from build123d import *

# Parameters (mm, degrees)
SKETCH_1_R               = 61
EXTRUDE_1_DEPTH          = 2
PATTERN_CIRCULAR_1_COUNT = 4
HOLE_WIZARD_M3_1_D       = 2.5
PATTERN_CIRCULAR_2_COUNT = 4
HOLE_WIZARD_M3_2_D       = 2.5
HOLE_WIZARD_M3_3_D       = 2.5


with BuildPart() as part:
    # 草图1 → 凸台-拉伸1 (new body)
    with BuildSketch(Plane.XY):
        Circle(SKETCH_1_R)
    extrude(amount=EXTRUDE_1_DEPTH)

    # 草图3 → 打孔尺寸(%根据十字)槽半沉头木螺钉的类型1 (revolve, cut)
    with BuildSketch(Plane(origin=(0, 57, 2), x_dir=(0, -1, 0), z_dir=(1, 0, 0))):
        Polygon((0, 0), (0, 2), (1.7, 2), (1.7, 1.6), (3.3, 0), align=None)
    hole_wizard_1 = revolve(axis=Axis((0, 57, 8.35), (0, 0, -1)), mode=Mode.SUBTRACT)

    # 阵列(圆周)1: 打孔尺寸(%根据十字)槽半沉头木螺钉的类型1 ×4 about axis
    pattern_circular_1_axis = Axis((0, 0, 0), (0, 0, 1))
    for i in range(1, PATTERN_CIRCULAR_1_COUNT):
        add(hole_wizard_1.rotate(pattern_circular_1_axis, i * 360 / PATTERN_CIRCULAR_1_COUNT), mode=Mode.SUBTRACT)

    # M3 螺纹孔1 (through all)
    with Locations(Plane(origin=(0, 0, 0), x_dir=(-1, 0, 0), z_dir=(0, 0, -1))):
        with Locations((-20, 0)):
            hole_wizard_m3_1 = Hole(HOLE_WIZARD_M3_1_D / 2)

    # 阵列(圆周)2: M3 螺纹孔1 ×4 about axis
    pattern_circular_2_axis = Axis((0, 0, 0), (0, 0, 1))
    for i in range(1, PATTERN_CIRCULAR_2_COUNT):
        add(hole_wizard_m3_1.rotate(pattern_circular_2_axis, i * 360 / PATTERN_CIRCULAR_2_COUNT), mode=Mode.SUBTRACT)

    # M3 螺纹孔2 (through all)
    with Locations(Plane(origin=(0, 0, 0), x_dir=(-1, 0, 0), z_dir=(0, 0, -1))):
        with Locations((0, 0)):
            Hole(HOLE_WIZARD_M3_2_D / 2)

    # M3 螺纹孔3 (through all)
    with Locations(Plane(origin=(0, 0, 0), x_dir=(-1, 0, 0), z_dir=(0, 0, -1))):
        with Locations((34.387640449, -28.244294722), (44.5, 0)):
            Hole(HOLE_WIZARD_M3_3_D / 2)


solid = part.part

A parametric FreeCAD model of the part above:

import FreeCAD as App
import Part
import Sketcher
Q = App.Units.Quantity


def add_polygon(sketch, points):
    """Adds a closed chain of lines whose ends are joined by coincident constraints."""
    first, n = sketch.GeometryCount, len(points)
    for a, b in zip(points, points[1:] + points[:1]):
        sketch.addGeometry(Part.LineSegment(App.Vector(*a, 0), App.Vector(*b, 0)), False)
    for i in range(n):
        sketch.addConstraint(Sketcher.Constraint("Coincident", first + i, 2, first + (i + 1) % n, 1))

doc = App.newDocument("Part")
params = doc.addObject("Spreadsheet::Sheet", "Params")
for row, (alias, value) in enumerate([
    ("sketch1_diameter", "122 mm"),
    ("pad1_length", "2 mm"),
    ("sketch2_height", "2 mm"),
    ("sketch2_width", "3.3 mm"),
    ("sketch2_width2", "1.7 mm"),
    ("groove_angle", "360 deg"),
    ("sketch3_diameter", "2.5 mm"),
    ("hole_diameter", "2.5 mm"),
    ("sketch4_diameter", "2.5 mm"),
    ("hole2_diameter", "2.5 mm"),
    ("sketch5_diameter", "2.5 mm"),
    ("hole3_diameter", "2.5 mm"),
], start=1):
    params.set(f"A{row}", alias)
    params.set(f"B{row}", "=" + value)
    params.setAlias(f"B{row}", alias)

body = doc.addObject("PartDesign::Body", "Body")

# Sketch on XY plane
sketch1 = body.newObject("Sketcher::SketchObject", "Sketch")
sketch1.AttachmentSupport = (doc.getObject("XY_Plane"), [""])
sketch1.MapMode = "FlatFace"
sketch1.addGeometry(Part.Circle(App.Vector(0, 0, 0), App.Vector(0, 0, 1), 61), False)
sketch1.addConstraint(Sketcher.Constraint("Coincident", 0, 3, -1, 1))
sketch1.addConstraint(Sketcher.Constraint("Diameter", 0, 122.0))
sketch1.setExpression("Constraints[1]", "Params.sketch1_diameter")
pad1 = body.newObject("PartDesign::Pad", "Pad")
pad1.Profile = sketch1
pad1.setExpression("Length", "Params.pad1_length")

# Sketch on YZ plane
sketch2 = body.newObject("Sketcher::SketchObject", "Sketch001")
sketch2.AttachmentSupport = (doc.getObject("YZ_Plane"), [""])
sketch2.MapMode = "FlatFace"
add_polygon(sketch2, [(57, 0), (57, 2), (53.7, 2), (55.3, 0.4), (55.3, 0)])  # lines 0-4
sketch2.addGeometry(Part.LineSegment(App.Vector(57, 2, 0), App.Vector(57, 0, 0)), True)  # axis
sketch2.addConstraint(Sketcher.Constraint("Vertical", 0))
sketch2.addConstraint(Sketcher.Constraint("Horizontal", 1))
sketch2.addConstraint(Sketcher.Constraint("Vertical", 3))
sketch2.addConstraint(Sketcher.Constraint("Horizontal", 4))
sketch2.addConstraint(Sketcher.Constraint("Vertical", 5))
sketch2.addConstraint(Sketcher.Constraint("Coincident", 5, 1, 0, 2))
sketch2.addConstraint(Sketcher.Constraint("PointOnObject", 3, 2, -1))
sketch2.addConstraint(Sketcher.Constraint("PointOnObject", 5, 2, -1))
sketch2.addConstraint(Sketcher.Constraint("DistanceY", 0, 1, 0, 2, 2.0))
sketch2.addConstraint(Sketcher.Constraint("Angle", 2, Q("-45 deg")))
sketch2.addConstraint(Sketcher.Constraint("DistanceX", 1, 2, 1, 1, 3.3))
sketch2.addConstraint(Sketcher.Constraint("DistanceX", 4, 1, 4, 2, 1.7))
sketch2.addConstraint(Sketcher.Constraint("DistanceX", -1, 1, 0, 2, 57.0))
sketch2.setExpression("Constraints[13]", "Params.sketch2_height")
sketch2.setExpression("Constraints[15]", "Params.sketch2_width")
sketch2.setExpression("Constraints[16]", "Params.sketch2_width2")
groove = body.newObject("PartDesign::Groove", "Groove")
groove.Profile = sketch2
groove.ReferenceAxis = (sketch2, ["Axis0"])
groove.setExpression("Angle", "Params.groove_angle")
doc.recompute()

polarpattern = body.newObject("PartDesign::PolarPattern", "PolarPattern")
polarpattern.Originals = [groove]
polarpattern.Axis = (doc.getObject("Z_Axis"), [""])
polarpattern.Angle = 360
polarpattern.Occurrences = 4
body.Tip = polarpattern

# Sketch on XY plane
sketch3 = body.newObject("Sketcher::SketchObject", "Sketch002")
sketch3.AttachmentSupport = (doc.getObject("XY_Plane"), [""])
sketch3.MapMode = "FlatFace"
sketch3.addGeometry(Part.Circle(App.Vector(20, 0, 0), App.Vector(0, 0, 1), 1.25), False)
sketch3.addConstraint(Sketcher.Constraint("PointOnObject", 0, 3, -1))
sketch3.addConstraint(Sketcher.Constraint("Diameter", 0, 2.5))
sketch3.addConstraint(Sketcher.Constraint("DistanceX", -1, 1, 0, 3, 20.0))
sketch3.setExpression("Constraints[1]", "Params.sketch3_diameter")
doc.recompute()
hole = body.newObject("PartDesign::Hole", "Hole")
hole.Profile = sketch3
hole.ThreadType = "None"
hole.setExpression("Diameter", "Params.hole_diameter")
hole.DepthType = "ThroughAll"
hole.Reversed = True
doc.recompute()

polarpattern2 = body.newObject("PartDesign::PolarPattern", "PolarPattern001")
polarpattern2.Originals = [hole]
polarpattern2.Axis = (doc.getObject("Z_Axis"), [""])
polarpattern2.Angle = 360
polarpattern2.Occurrences = 4
body.Tip = polarpattern2

# Sketch on XY plane
sketch4 = body.newObject("Sketcher::SketchObject", "Sketch003")
sketch4.AttachmentSupport = (doc.getObject("XY_Plane"), [""])
sketch4.MapMode = "FlatFace"
sketch4.addGeometry(Part.Circle(App.Vector(0, 0, 0), App.Vector(0, 0, 1), 1.25), False)
sketch4.addConstraint(Sketcher.Constraint("Coincident", 0, 3, -1, 1))
sketch4.addConstraint(Sketcher.Constraint("Diameter", 0, 2.5))
sketch4.setExpression("Constraints[1]", "Params.sketch4_diameter")
doc.recompute()
hole2 = body.newObject("PartDesign::Hole", "Hole001")
hole2.Profile = sketch4
hole2.ThreadType = "None"
hole2.setExpression("Diameter", "Params.hole2_diameter")
hole2.DepthType = "ThroughAll"
hole2.Reversed = True

# Sketch on XY plane
sketch5 = body.newObject("Sketcher::SketchObject", "Sketch004")
sketch5.AttachmentSupport = (doc.getObject("XY_Plane"), [""])
sketch5.MapMode = "FlatFace"
sketch5.addGeometry(Part.Circle(App.Vector(-34.38764, -28.244295, 0), App.Vector(0, 0, 1), 1.25), False)
sketch5.addGeometry(Part.Circle(App.Vector(-44.5, 0, 0), App.Vector(0, 0, 1), 1.25), False)
sketch5.addConstraint(Sketcher.Constraint("Equal", 0, 1))
sketch5.addConstraint(Sketcher.Constraint("PointOnObject", 1, 3, -1))
sketch5.addConstraint(Sketcher.Constraint("Diameter", 0, 2.5))
sketch5.addConstraint(Sketcher.Constraint("DistanceX", 1, 3, -1, 1, 44.5))
sketch5.addConstraint(Sketcher.Constraint("DistanceX", 0, 3, -1, 1, 34.38764))
sketch5.addConstraint(Sketcher.Constraint("DistanceY", 0, 3, -1, 1, 28.244295))
sketch5.setExpression("Constraints[2]", "Params.sketch5_diameter")
doc.recompute()
hole3 = body.newObject("PartDesign::Hole", "Hole002")
hole3.Profile = sketch5
hole3.ThreadType = "None"
hole3.setExpression("Diameter", "Params.hole3_diameter")
hole3.DepthType = "ThroughAll"
hole3.Reversed = True

doc.recompute()
